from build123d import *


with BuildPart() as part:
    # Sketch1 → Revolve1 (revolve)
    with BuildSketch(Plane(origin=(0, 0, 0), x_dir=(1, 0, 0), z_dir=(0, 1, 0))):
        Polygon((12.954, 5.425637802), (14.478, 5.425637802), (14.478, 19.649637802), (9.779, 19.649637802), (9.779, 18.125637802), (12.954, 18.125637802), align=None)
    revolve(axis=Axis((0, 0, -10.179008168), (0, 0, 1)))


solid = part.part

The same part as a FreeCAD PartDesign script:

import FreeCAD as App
import Part
import Sketcher
from FreeCAD import Vector
Q = App.Units.Quantity

doc = App.newDocument("Part")
params = doc.addObject("Spreadsheet::Sheet", "Params")
for row, (alias, value) in enumerate([
    ("sketch1_height", "0.5 in"),
    ("sketch1_width", "0.06 in"),
    ("sketch1_width2", "0.185 in"),
    ("revolution_angle", "360 deg"),
], start=1):
    params.set(f"A{row}", alias)
    params.set(f"B{row}", "=" + value)
    params.setAlias(f"B{row}", alias)

body = doc.addObject("PartDesign::Body", "Body")

sketch1 = body.newObject("Sketcher::SketchObject", "Sketch")
sketch1.AttachmentSupport = (doc.getObject("XZ_Plane"), [""])
sketch1.MapMode = "FlatFace"
sketch1.addGeometry([
    Part.LineSegment(Vector(12.954, -5.425638, 0), Vector(14.478, -5.425638, 0)),
    Part.LineSegment(Vector(14.478, -5.425638, 0), Vector(14.478, -19.649638, 0)),
    Part.LineSegment(Vector(14.478, -19.649638, 0), Vector(9.779, -19.649638, 0)),
    Part.LineSegment(Vector(9.779, -19.649638, 0), Vector(9.779, -18.125638, 0)),
    Part.LineSegment(Vector(9.779, -18.125638, 0), Vector(12.954, -18.125638, 0)),
    Part.LineSegment(Vector(12.954, -18.125638, 0), Vector(12.954, -5.425638, 0)),
], False)
sketch1.addConstraint([
    Sketcher.Constraint("Coincident", 0, 2, 1, 1),
    Sketcher.Constraint("Coincident", 1, 2, 2, 1),
    Sketcher.Constraint("Coincident", 2, 2, 3, 1),
    Sketcher.Constraint("Coincident", 3, 2, 4, 1),
    Sketcher.Constraint("Coincident", 4, 2, 5, 1),
    Sketcher.Constraint("Coincident", 5, 2, 0, 1),
    Sketcher.Constraint("Horizontal", 0),
    Sketcher.Constraint("Vertical", 1),
    Sketcher.Constraint("Horizontal", 2),
    Sketcher.Constraint("Vertical", 3),
    Sketcher.Constraint("Horizontal", 4),
    Sketcher.Constraint("Vertical", 5),
    Sketcher.Constraint("Equal", 0, 3),
    Sketcher.Constraint("DistanceY", 5, 1, 5, 2, Q("0.5 in")),
    Sketcher.Constraint("DistanceX", 0, 1, 0, 2, Q("0.06 in")),
    Sketcher.Constraint("DistanceX", 2, 2, 2, 1, Q("0.185 in")),
    Sketcher.Constraint("DistanceX", -1, 1, 0, 2, Q("0.57 in")),
    Sketcher.Constraint("DistanceY", 0, 2, -1, 1, 5.425638),
])
sketch1.setExpression("Constraints[13]", "Params.sketch1_height")
sketch1.setExpression("Constraints[14]", "Params.sketch1_width")
sketch1.setExpression("Constraints[15]", "Params.sketch1_width2")
revolution = body.newObject("PartDesign::Revolution", "Revolution")
revolution.Profile = sketch1
revolution.ReferenceAxis = (sketch1, ["V_Axis"])
revolution.setExpression("Angle", "Params.revolution_angle")

doc.recompute()
